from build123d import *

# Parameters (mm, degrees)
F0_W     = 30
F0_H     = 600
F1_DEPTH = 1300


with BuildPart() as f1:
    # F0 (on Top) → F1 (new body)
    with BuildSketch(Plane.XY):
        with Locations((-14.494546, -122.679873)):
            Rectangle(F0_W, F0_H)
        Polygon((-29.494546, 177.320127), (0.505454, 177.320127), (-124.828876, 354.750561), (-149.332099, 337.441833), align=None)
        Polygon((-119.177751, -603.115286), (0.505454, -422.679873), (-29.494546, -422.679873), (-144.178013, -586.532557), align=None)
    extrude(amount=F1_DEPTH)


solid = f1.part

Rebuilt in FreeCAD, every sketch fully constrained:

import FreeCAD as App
import Part
import Sketcher

V = App.Vector

doc = App.newDocument("Part")
body = doc.addObject("PartDesign::Body", "Body")

sketch1 = body.newObject("Sketcher::SketchObject", "Sketch")
sketch1.AttachmentSupport = (doc.getObject("XY_Plane"), [""])
sketch1.MapMode = "FlatFace"
sketch1.addGeometry([
    Part.LineSegment(V(-29, 177, 0), V(-29, -423, 0)),
    Part.LineSegment(V(-29, -423, 0), V(-144, -587, 0)),
    Part.LineSegment(V(-144, -587, 0), V(-119, -603, 0)),
    Part.LineSegment(V(-119, -603, 0), V(1, -423, 0)),
    Part.LineSegment(V(1, -423, 0), V(1, 177, 0)),
    Part.LineSegment(V(1, 177, 0), V(-125, 355, 0)),
    Part.LineSegment(V(-125, 355, 0), V(-149, 337, 0)),
    Part.LineSegment(V(-149, 337, 0), V(-29, 177, 0)),
], False)
sketch1.addConstraint([
    Sketcher.Constraint("Coincident", 0, 2, 1, 1),
    Sketcher.Constraint("Coincident", 1, 2, 2, 1),
    Sketcher.Constraint("Coincident", 2, 2, 3, 1),
    Sketcher.Constraint("Coincident", 3, 2, 4, 1),
    Sketcher.Constraint("Coincident", 4, 2, 5, 1),
    Sketcher.Constraint("Coincident", 5, 2, 6, 1),
    Sketcher.Constraint("Coincident", 6, 2, 7, 1),
    Sketcher.Constraint("Coincident", 7, 2, 0, 1),
    Sketcher.Constraint("Vertical", 0),
    Sketcher.Constraint("Vertical", 4),
    Sketcher.Constraint("Perpendicular", 2, 3),
    Sketcher.Constraint("Perpendicular", 5, 6),
    Sketcher.Constraint("Horizontal", 0, 2, 3, 2),
    Sketcher.Constraint("Horizontal", 4, 2, 7, 2),
    Sketcher.Constraint("Equal", 2, 6),
    Sketcher.Constraint("Equal", 1, 7),
    Sketcher.Constraint("DistanceY", 0, 2, 0, 1, 600.0),
    Sketcher.Constraint("Distance", 1, 199.999999),
    Sketcher.Constraint("Distance", 2, 30.0),
    Sketcher.Constraint("DistanceX", 0, 2, 3, 2, 30.0),
    Sketcher.Constraint("DistanceX", 6, 2, -1, 1, 149.332099),
    Sketcher.Constraint("DistanceX", 2, 2, -1, 1, 119.177751),
    Sketcher.Constraint("DistanceY", -1, 1, 5, 2, 354.750561),
    Sketcher.Constraint("DistanceX", 1, 2, 2, 2, 25.000262),
])
pad1 = body.newObject("PartDesign::Pad", "Pad")
pad1.Profile = sketch1
pad1.Length = 1300

doc.recompute()
